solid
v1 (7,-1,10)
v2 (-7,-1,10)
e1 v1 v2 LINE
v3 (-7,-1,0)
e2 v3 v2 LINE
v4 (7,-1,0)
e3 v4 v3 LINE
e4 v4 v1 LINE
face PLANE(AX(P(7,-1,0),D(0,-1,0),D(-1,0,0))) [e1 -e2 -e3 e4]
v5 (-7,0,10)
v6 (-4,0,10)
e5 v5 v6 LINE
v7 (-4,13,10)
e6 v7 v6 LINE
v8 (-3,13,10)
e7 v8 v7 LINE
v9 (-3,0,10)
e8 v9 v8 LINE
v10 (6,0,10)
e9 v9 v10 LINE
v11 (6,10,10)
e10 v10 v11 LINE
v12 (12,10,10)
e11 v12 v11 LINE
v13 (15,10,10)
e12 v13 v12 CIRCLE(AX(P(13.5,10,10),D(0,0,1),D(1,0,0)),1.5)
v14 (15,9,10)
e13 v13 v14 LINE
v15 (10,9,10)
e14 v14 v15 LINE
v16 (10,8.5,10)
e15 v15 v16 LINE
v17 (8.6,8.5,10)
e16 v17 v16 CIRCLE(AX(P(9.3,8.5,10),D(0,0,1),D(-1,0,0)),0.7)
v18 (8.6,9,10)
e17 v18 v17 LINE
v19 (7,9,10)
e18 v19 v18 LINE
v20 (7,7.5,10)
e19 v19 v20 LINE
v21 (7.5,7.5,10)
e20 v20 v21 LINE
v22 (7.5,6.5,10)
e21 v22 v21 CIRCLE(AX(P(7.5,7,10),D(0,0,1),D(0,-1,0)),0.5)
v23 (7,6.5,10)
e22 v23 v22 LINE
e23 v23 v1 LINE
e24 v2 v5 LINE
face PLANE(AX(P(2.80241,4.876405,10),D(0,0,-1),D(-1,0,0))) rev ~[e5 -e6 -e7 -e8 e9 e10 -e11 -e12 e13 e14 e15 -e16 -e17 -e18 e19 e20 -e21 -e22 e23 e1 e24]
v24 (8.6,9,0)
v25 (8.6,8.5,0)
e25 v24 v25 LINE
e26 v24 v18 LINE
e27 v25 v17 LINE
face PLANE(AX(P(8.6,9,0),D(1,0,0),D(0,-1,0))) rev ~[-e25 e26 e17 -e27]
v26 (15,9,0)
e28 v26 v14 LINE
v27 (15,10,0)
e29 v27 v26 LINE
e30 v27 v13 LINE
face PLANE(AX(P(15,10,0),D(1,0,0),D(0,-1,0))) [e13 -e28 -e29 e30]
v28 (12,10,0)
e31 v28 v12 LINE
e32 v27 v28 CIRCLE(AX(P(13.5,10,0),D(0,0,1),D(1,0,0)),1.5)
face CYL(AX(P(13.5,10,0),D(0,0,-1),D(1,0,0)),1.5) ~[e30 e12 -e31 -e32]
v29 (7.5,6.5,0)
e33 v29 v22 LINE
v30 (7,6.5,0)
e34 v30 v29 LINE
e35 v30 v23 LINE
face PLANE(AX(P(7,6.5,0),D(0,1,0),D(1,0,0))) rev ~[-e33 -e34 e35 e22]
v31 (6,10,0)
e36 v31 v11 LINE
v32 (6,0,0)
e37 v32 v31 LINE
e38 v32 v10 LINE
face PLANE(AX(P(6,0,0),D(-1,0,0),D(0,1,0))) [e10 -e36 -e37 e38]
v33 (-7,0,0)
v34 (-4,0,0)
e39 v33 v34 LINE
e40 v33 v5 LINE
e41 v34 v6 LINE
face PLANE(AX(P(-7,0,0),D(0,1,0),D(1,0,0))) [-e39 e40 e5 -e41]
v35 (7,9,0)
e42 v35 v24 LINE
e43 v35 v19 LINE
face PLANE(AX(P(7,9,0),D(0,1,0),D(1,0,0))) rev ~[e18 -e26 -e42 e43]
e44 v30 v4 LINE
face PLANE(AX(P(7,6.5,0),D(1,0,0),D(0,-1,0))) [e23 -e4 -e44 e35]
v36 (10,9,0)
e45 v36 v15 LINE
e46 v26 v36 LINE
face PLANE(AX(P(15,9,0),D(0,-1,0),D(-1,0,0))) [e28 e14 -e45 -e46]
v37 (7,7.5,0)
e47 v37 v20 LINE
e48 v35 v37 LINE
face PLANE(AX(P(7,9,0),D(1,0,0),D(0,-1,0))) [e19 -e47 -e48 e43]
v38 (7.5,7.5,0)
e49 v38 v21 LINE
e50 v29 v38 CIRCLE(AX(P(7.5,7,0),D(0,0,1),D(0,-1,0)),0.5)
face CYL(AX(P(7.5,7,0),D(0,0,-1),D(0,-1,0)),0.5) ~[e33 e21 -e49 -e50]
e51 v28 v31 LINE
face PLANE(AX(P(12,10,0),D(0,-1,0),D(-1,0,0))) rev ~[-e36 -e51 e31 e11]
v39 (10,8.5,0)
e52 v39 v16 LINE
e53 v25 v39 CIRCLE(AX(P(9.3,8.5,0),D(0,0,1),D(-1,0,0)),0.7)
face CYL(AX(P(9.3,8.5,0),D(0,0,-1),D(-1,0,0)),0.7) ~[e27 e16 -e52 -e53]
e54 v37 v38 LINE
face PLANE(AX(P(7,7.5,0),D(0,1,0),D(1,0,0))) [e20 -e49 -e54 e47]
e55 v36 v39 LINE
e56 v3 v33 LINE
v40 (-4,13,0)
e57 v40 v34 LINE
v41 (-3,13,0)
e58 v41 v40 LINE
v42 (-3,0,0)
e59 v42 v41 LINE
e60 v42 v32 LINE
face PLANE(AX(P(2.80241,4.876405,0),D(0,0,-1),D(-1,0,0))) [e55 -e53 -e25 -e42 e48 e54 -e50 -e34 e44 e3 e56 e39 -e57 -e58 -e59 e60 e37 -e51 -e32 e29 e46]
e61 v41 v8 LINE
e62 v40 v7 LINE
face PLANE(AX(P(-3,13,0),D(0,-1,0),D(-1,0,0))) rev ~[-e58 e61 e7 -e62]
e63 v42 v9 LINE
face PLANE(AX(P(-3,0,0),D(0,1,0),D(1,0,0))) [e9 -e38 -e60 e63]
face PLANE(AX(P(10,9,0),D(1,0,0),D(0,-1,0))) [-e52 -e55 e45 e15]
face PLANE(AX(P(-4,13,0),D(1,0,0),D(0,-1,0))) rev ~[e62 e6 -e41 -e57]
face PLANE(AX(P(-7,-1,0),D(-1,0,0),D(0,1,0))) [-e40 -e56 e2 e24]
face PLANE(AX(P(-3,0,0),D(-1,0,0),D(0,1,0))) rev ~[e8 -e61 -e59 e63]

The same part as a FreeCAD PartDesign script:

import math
import FreeCAD as App
import Part
import Sketcher
from FreeCAD import Vector

doc = App.newDocument("Part")
body = doc.addObject("PartDesign::Body", "Body")

# Sketch on XY plane
sketch1 = doc.addObject("Sketcher::SketchObject", "Sketch")
body.addObject(sketch1)
sketch1.AttachmentSupport = (doc.XY_Plane, [""])
sketch1.MapMode = "FlatFace"
sketch1.addGeometry([
    Part.LineSegment(Vector(-7, -1, 0), Vector(7, -1, 0)),  # 0
    Part.LineSegment(Vector(7, -1, 0), Vector(7, 6.5, 0)),  # 1
    Part.LineSegment(Vector(7, 6.5, 0), Vector(7.5, 6.5, 0)),  # 2
    Part.ArcOfCircle(Part.Circle(Vector(7.5, 7, 0), Vector(0, 0, 1), 0.5), math.radians(-90), math.radians(90)),  # 3
    Part.LineSegment(Vector(7.5, 7.5, 0), Vector(7, 7.5, 0)),  # 4
    Part.LineSegment(Vector(7, 7.5, 0), Vector(7, 9, 0)),  # 5
    Part.LineSegment(Vector(7, 9, 0), Vector(8.6, 9, 0)),  # 6
    Part.LineSegment(Vector(8.6, 9, 0), Vector(8.6, 8.5, 0)),  # 7
    Part.ArcOfCircle(Part.Circle(Vector(9.3, 8.5, 0), Vector(0, 0, 1), 0.7), math.radians(180), math.radians(360)),  # 8
    Part.LineSegment(Vector(10, 8.5, 0), Vector(10, 9, 0)),  # 9
    Part.LineSegment(Vector(10, 9, 0), Vector(15, 9, 0)),  # 10
    Part.LineSegment(Vector(15, 9, 0), Vector(15, 10, 0)),  # 11
    Part.ArcOfCircle(Part.Circle(Vector(13.5, 10, 0), Vector(0, 0, 1), 1.5), math.radians(0), math.radians(180)),  # 12
    Part.LineSegment(Vector(12, 10, 0), Vector(6, 10, 0)),  # 13
    Part.LineSegment(Vector(6, 10, 0), Vector(6, 0, 0)),  # 14
    Part.LineSegment(Vector(6, 0, 0), Vector(-3, 0, 0)),  # 15
    Part.LineSegment(Vector(-3, 0, 0), Vector(-3, 13, 0)),  # 16
    Part.LineSegment(Vector(-3, 13, 0), Vector(-4, 13, 0)),  # 17
    Part.LineSegment(Vector(-4, 13, 0), Vector(-4, 0, 0)),  # 18
    Part.LineSegment(Vector(-4, 0, 0), Vector(-7, 0, 0)),  # 19
    Part.LineSegment(Vector(-7, 0, 0), Vector(-7, -1, 0)),  # 20
], False)
sketch1.addConstraint([
    Sketcher.Constraint("Coincident", 0, 2, 1, 1),
    Sketcher.Constraint("Coincident", 1, 2, 2, 1),
    Sketcher.Constraint("Tangent", 2, 2, 3, 1),
    Sketcher.Constraint("Tangent", 3, 2, 4, 1),
    Sketcher.Constraint("Coincident", 4, 2, 5, 1),
    Sketcher.Constraint("Coincident", 5, 2, 6, 1),
    Sketcher.Constraint("Coincident", 6, 2, 7, 1),
    Sketcher.Constraint("Tangent", 7, 2, 8, 1),
    Sketcher.Constraint("Tangent", 8, 2, 9, 1),
    Sketcher.Constraint("Coincident", 9, 2, 10, 1),
    Sketcher.Constraint("Coincident", 10, 2, 11, 1),
    Sketcher.Constraint("Tangent", 11, 2, 12, 1),
    Sketcher.Constraint("Coincident", 12, 2, 13, 1),
    Sketcher.Constraint("Coincident", 13, 2, 14, 1),
    Sketcher.Constraint("Coincident", 14, 2, 15, 1),
    Sketcher.Constraint("Coincident", 15, 2, 16, 1),
    Sketcher.Constraint("Coincident", 16, 2, 17, 1),
    Sketcher.Constraint("Coincident", 17, 2, 18, 1),
    Sketcher.Constraint("Coincident", 18, 2, 19, 1),
    Sketcher.Constraint("Coincident", 19, 2, 20, 1),
    Sketcher.Constraint("Coincident", 20, 2, 0, 1),
    Sketcher.Constraint("Horizontal", 0),
    Sketcher.Constraint("Vertical", 1),
    Sketcher.Constraint("Horizontal", 2),
    Sketcher.Constraint("Horizontal", 4),
    Sketcher.Constraint("Vertical", 5),
    Sketcher.Constraint("Horizontal", 6),
    Sketcher.Constraint("Vertical", 7),
    Sketcher.Constraint("Vertical", 9),
    Sketcher.Constraint("Horizontal", 10),
    Sketcher.Constraint("Vertical", 11),
    Sketcher.Constraint("Horizontal", 13),
    Sketcher.Constraint("Vertical", 14),
    Sketcher.Constraint("Horizontal", 15),
    Sketcher.Constraint("Vertical", 16),
    Sketcher.Constraint("Horizontal", 17),
    Sketcher.Constraint("Vertical", 18),
    Sketcher.Constraint("Horizontal", 19),
    Sketcher.Constraint("Vertical", 20),
    Sketcher.Constraint("PointOnObject", 14, 2, -1),
    Sketcher.Constraint("PointOnObject", 18, 2, -1),
    Sketcher.Constraint("Horizontal", 6, 2, 9, 2),
    Sketcher.Constraint("Horizontal", 11, 2, 12, 2),
    Sketcher.Constraint("Vertical", 1, 2, 4, 2),
    Sketcher.Constraint("Equal", 4, 7),
    Sketcher.Constraint("Equal", 17, 11),
    Sketcher.Constraint("Equal", 11, 20),
    Sketcher.Constraint("Radius", 3, 0.5),
    Sketcher.Constraint("Radius", 8, 0.7),
    Sketcher.Constraint("Radius", 12, 1.5),
    Sketcher.Constraint("DistanceX", 0, 1, 0, 2, 14.0),
    Sketcher.Constraint("DistanceX", 10, 1, 10, 2, 5.0),
    Sketcher.Constraint("DistanceX", 13, 2, 13, 1, 6.0),
    Sketcher.Constraint("DistanceX", 15, 2, 15, 1, 9.0),
    Sketcher.Constraint("DistanceX", 17, 2, 17, 1, 1.0),
    Sketcher.Constraint("DistanceX", 19, 2, 19, 1, 3.0),
    Sketcher.Constraint("DistanceY", 14, 2, 14, 1, 10.0),
    Sketcher.Constraint("DistanceY", 16, 1, 16, 2, 13.0),
    Sketcher.Constraint("DistanceX", 2, 1, 2, 2, 0.5),
    Sketcher.Constraint("DistanceY", 1, 1, 1, 2, 7.5),
    Sketcher.Constraint("DistanceX", -1, 1, 0, 2, 7.0),
])
pad1 = doc.addObject("PartDesign::Pad", "Pad")
body.addObject(pad1)
pad1.Profile = sketch1
pad1.Length = 10

# Sketch on XY plane
sketch2 = doc.addObject("Sketcher::SketchObject", "Sketch001")
body.addObject(sketch2)
sketch2.AttachmentSupport = (doc.XY_Plane, [""])
sketch2.MapMode = "FlatFace"
sketch2.addGeometry([
    Part.LineSegment(Vector(-7, -1, 0), Vector(7, -1, 0)),  # 0
    Part.LineSegment(Vector(7, -1, 0), Vector(7, 6.5, 0)),  # 1
    Part.LineSegment(Vector(7, 6.5, 0), Vector(7.5, 6.5, 0)),  # 2
    Part.ArcOfCircle(Part.Circle(Vector(7.5, 7, 0), Vector(0, 0, 1), 0.5), math.radians(-90), math.radians(90)),  # 3
    Part.LineSegment(Vector(7.5, 7.5, 0), Vector(7, 7.5, 0)),  # 4
    Part.LineSegment(Vector(7, 7.5, 0), Vector(7, 9, 0)),  # 5
    Part.LineSegment(Vector(7, 9, 0), Vector(8.6, 9, 0)),  # 6
    Part.LineSegment(Vector(8.6, 9, 0), Vector(8.6, 8.5, 0)),  # 7
    Part.ArcOfCircle(Part.Circle(Vector(9.3, 8.5, 0), Vector(0, 0, 1), 0.7), math.radians(180), math.radians(360)),  # 8
    Part.LineSegment(Vector(10, 8.5, 0), Vector(10, 9, 0)),  # 9
    Part.LineSegment(Vector(10, 9, 0), Vector(15, 9, 0)),  # 10
    Part.LineSegment(Vector(15, 9, 0), Vector(15, 10, 0)),  # 11
    Part.ArcOfCircle(Part.Circle(Vector(13.5, 10, 0), Vector(0, 0, 1), 1.5), math.radians(0), math.radians(180)),  # 12
    Part.LineSegment(Vector(12, 10, 0), Vector(6, 10, 0)),  # 13
    Part.LineSegment(Vector(6, 10, 0), Vector(6, 0, 0)),  # 14
    Part.LineSegment(Vector(6, 0, 0), Vector(-3, 0, 0)),  # 15
    Part.LineSegment(Vector(-3, 0, 0), Vector(-3, 13, 0)),  # 16
    Part.LineSegment(Vector(-3, 13, 0), Vector(-4, 13, 0)),  # 17
    Part.LineSegment(Vector(-4, 13, 0), Vector(-4, 0, 0)),  # 18
    Part.LineSegment(Vector(-4, 0, 0), Vector(-7, 0, 0)),  # 19
    Part.LineSegment(Vector(-7, 0, 0), Vector(-7, -1, 0)),  # 20
], False)
sketch2.addConstraint([
    Sketcher.Constraint("Coincident", 0, 2, 1, 1),
    Sketcher.Constraint("Coincident", 1, 2, 2, 1),
    Sketcher.Constraint("Tangent", 2, 2, 3, 1),
    Sketcher.Constraint("Tangent", 3, 2, 4, 1),
    Sketcher.Constraint("Coincident", 4, 2, 5, 1),
    Sketcher.Constraint("Coincident", 5, 2, 6, 1),
    Sketcher.Constraint("Coincident", 6, 2, 7, 1),
    Sketcher.Constraint("Tangent", 7, 2, 8, 1),
    Sketcher.Constraint("Tangent", 8, 2, 9, 1),
    Sketcher.Constraint("Coincident", 9, 2, 10, 1),
    Sketcher.Constraint("Coincident", 10, 2, 11, 1),
    Sketcher.Constraint("Tangent", 11, 2, 12, 1),
    Sketcher.Constraint("Coincident", 12, 2, 13, 1),
    Sketcher.Constraint("Coincident", 13, 2, 14, 1),
    Sketcher.Constraint("Coincident", 14, 2, 15, 1),
    Sketcher.Constraint("Coincident", 15, 2, 16, 1),
    Sketcher.Constraint("Coincident", 16, 2, 17, 1),
    Sketcher.Constraint("Coincident", 17, 2, 18, 1),
    Sketcher.Constraint("Coincident", 18, 2, 19, 1),
    Sketcher.Constraint("Coincident", 19, 2, 20, 1),
    Sketcher.Constraint("Coincident", 20, 2, 0, 1),
    Sketcher.Constraint("Horizontal", 0),
    Sketcher.Constraint("Vertical", 1),
    Sketcher.Constraint("Horizontal", 2),
    Sketcher.Constraint("Horizontal", 4),
    Sketcher.Constraint("Vertical", 5),
    Sketcher.Constraint("Horizontal", 6),
    Sketcher.Constraint("Vertical", 7),
    Sketcher.Constraint("Vertical", 9),
    Sketcher.Constraint("Horizontal", 10),
    Sketcher.Constraint("Vertical", 11),
    Sketcher.Constraint("Horizontal", 13),
    Sketcher.Constraint("Vertical", 14),
    Sketcher.Constraint("Horizontal", 15),
    Sketcher.Constraint("Vertical", 16),
    Sketcher.Constraint("Horizontal", 17),
    Sketcher.Constraint("Vertical", 18),
    Sketcher.Constraint("Horizontal", 19),
    Sketcher.Constraint("Vertical", 20),
    Sketcher.Constraint("PointOnObject", 14, 2, -1),
    Sketcher.Constraint("PointOnObject", 18, 2, -1),
    Sketcher.Constraint("Horizontal", 6, 2, 9, 2),
    Sketcher.Constraint("Horizontal", 11, 2, 12, 2),
    Sketcher.Constraint("Vertical", 1, 2, 4, 2),
    Sketcher.Constraint("Equal", 4, 7),
    Sketcher.Constraint("Equal", 17, 11),
    Sketcher.Constraint("Equal", 11, 20),
    Sketcher.Constraint("Radius", 3, 0.5),
    Sketcher.Constraint("Radius", 8, 0.7),
    Sketcher.Constraint("Radius", 12, 1.5),
    Sketcher.Constraint("DistanceX", 0, 1, 0, 2, 14.0),
    Sketcher.Constraint("DistanceX", 10, 1, 10, 2, 5.0),
    Sketcher.Constraint("DistanceX", 13, 2, 13, 1, 6.0),
    Sketcher.Constraint("DistanceX", 15, 2, 15, 1, 9.0),
    Sketcher.Constraint("DistanceX", 17, 2, 17, 1, 1.0),
    Sketcher.Constraint("DistanceX", 19, 2, 19, 1, 3.0),
    Sketcher.Constraint("DistanceY", 14, 2, 14, 1, 10.0),
    Sketcher.Constraint("DistanceY", 16, 1, 16, 2, 13.0),
    Sketcher.Constraint("DistanceX", 2, 1, 2, 2, 0.5),
    Sketcher.Constraint("DistanceY", 1, 1, 1, 2, 7.5),
    Sketcher.Constraint("DistanceX", -1, 1, 0, 2, 7.0),
])
pad2 = doc.addObject("PartDesign::Pad", "Pad001")
body.addObject(pad2)
pad2.Profile = sketch2
pad2.Length = 10

doc.recompute()
